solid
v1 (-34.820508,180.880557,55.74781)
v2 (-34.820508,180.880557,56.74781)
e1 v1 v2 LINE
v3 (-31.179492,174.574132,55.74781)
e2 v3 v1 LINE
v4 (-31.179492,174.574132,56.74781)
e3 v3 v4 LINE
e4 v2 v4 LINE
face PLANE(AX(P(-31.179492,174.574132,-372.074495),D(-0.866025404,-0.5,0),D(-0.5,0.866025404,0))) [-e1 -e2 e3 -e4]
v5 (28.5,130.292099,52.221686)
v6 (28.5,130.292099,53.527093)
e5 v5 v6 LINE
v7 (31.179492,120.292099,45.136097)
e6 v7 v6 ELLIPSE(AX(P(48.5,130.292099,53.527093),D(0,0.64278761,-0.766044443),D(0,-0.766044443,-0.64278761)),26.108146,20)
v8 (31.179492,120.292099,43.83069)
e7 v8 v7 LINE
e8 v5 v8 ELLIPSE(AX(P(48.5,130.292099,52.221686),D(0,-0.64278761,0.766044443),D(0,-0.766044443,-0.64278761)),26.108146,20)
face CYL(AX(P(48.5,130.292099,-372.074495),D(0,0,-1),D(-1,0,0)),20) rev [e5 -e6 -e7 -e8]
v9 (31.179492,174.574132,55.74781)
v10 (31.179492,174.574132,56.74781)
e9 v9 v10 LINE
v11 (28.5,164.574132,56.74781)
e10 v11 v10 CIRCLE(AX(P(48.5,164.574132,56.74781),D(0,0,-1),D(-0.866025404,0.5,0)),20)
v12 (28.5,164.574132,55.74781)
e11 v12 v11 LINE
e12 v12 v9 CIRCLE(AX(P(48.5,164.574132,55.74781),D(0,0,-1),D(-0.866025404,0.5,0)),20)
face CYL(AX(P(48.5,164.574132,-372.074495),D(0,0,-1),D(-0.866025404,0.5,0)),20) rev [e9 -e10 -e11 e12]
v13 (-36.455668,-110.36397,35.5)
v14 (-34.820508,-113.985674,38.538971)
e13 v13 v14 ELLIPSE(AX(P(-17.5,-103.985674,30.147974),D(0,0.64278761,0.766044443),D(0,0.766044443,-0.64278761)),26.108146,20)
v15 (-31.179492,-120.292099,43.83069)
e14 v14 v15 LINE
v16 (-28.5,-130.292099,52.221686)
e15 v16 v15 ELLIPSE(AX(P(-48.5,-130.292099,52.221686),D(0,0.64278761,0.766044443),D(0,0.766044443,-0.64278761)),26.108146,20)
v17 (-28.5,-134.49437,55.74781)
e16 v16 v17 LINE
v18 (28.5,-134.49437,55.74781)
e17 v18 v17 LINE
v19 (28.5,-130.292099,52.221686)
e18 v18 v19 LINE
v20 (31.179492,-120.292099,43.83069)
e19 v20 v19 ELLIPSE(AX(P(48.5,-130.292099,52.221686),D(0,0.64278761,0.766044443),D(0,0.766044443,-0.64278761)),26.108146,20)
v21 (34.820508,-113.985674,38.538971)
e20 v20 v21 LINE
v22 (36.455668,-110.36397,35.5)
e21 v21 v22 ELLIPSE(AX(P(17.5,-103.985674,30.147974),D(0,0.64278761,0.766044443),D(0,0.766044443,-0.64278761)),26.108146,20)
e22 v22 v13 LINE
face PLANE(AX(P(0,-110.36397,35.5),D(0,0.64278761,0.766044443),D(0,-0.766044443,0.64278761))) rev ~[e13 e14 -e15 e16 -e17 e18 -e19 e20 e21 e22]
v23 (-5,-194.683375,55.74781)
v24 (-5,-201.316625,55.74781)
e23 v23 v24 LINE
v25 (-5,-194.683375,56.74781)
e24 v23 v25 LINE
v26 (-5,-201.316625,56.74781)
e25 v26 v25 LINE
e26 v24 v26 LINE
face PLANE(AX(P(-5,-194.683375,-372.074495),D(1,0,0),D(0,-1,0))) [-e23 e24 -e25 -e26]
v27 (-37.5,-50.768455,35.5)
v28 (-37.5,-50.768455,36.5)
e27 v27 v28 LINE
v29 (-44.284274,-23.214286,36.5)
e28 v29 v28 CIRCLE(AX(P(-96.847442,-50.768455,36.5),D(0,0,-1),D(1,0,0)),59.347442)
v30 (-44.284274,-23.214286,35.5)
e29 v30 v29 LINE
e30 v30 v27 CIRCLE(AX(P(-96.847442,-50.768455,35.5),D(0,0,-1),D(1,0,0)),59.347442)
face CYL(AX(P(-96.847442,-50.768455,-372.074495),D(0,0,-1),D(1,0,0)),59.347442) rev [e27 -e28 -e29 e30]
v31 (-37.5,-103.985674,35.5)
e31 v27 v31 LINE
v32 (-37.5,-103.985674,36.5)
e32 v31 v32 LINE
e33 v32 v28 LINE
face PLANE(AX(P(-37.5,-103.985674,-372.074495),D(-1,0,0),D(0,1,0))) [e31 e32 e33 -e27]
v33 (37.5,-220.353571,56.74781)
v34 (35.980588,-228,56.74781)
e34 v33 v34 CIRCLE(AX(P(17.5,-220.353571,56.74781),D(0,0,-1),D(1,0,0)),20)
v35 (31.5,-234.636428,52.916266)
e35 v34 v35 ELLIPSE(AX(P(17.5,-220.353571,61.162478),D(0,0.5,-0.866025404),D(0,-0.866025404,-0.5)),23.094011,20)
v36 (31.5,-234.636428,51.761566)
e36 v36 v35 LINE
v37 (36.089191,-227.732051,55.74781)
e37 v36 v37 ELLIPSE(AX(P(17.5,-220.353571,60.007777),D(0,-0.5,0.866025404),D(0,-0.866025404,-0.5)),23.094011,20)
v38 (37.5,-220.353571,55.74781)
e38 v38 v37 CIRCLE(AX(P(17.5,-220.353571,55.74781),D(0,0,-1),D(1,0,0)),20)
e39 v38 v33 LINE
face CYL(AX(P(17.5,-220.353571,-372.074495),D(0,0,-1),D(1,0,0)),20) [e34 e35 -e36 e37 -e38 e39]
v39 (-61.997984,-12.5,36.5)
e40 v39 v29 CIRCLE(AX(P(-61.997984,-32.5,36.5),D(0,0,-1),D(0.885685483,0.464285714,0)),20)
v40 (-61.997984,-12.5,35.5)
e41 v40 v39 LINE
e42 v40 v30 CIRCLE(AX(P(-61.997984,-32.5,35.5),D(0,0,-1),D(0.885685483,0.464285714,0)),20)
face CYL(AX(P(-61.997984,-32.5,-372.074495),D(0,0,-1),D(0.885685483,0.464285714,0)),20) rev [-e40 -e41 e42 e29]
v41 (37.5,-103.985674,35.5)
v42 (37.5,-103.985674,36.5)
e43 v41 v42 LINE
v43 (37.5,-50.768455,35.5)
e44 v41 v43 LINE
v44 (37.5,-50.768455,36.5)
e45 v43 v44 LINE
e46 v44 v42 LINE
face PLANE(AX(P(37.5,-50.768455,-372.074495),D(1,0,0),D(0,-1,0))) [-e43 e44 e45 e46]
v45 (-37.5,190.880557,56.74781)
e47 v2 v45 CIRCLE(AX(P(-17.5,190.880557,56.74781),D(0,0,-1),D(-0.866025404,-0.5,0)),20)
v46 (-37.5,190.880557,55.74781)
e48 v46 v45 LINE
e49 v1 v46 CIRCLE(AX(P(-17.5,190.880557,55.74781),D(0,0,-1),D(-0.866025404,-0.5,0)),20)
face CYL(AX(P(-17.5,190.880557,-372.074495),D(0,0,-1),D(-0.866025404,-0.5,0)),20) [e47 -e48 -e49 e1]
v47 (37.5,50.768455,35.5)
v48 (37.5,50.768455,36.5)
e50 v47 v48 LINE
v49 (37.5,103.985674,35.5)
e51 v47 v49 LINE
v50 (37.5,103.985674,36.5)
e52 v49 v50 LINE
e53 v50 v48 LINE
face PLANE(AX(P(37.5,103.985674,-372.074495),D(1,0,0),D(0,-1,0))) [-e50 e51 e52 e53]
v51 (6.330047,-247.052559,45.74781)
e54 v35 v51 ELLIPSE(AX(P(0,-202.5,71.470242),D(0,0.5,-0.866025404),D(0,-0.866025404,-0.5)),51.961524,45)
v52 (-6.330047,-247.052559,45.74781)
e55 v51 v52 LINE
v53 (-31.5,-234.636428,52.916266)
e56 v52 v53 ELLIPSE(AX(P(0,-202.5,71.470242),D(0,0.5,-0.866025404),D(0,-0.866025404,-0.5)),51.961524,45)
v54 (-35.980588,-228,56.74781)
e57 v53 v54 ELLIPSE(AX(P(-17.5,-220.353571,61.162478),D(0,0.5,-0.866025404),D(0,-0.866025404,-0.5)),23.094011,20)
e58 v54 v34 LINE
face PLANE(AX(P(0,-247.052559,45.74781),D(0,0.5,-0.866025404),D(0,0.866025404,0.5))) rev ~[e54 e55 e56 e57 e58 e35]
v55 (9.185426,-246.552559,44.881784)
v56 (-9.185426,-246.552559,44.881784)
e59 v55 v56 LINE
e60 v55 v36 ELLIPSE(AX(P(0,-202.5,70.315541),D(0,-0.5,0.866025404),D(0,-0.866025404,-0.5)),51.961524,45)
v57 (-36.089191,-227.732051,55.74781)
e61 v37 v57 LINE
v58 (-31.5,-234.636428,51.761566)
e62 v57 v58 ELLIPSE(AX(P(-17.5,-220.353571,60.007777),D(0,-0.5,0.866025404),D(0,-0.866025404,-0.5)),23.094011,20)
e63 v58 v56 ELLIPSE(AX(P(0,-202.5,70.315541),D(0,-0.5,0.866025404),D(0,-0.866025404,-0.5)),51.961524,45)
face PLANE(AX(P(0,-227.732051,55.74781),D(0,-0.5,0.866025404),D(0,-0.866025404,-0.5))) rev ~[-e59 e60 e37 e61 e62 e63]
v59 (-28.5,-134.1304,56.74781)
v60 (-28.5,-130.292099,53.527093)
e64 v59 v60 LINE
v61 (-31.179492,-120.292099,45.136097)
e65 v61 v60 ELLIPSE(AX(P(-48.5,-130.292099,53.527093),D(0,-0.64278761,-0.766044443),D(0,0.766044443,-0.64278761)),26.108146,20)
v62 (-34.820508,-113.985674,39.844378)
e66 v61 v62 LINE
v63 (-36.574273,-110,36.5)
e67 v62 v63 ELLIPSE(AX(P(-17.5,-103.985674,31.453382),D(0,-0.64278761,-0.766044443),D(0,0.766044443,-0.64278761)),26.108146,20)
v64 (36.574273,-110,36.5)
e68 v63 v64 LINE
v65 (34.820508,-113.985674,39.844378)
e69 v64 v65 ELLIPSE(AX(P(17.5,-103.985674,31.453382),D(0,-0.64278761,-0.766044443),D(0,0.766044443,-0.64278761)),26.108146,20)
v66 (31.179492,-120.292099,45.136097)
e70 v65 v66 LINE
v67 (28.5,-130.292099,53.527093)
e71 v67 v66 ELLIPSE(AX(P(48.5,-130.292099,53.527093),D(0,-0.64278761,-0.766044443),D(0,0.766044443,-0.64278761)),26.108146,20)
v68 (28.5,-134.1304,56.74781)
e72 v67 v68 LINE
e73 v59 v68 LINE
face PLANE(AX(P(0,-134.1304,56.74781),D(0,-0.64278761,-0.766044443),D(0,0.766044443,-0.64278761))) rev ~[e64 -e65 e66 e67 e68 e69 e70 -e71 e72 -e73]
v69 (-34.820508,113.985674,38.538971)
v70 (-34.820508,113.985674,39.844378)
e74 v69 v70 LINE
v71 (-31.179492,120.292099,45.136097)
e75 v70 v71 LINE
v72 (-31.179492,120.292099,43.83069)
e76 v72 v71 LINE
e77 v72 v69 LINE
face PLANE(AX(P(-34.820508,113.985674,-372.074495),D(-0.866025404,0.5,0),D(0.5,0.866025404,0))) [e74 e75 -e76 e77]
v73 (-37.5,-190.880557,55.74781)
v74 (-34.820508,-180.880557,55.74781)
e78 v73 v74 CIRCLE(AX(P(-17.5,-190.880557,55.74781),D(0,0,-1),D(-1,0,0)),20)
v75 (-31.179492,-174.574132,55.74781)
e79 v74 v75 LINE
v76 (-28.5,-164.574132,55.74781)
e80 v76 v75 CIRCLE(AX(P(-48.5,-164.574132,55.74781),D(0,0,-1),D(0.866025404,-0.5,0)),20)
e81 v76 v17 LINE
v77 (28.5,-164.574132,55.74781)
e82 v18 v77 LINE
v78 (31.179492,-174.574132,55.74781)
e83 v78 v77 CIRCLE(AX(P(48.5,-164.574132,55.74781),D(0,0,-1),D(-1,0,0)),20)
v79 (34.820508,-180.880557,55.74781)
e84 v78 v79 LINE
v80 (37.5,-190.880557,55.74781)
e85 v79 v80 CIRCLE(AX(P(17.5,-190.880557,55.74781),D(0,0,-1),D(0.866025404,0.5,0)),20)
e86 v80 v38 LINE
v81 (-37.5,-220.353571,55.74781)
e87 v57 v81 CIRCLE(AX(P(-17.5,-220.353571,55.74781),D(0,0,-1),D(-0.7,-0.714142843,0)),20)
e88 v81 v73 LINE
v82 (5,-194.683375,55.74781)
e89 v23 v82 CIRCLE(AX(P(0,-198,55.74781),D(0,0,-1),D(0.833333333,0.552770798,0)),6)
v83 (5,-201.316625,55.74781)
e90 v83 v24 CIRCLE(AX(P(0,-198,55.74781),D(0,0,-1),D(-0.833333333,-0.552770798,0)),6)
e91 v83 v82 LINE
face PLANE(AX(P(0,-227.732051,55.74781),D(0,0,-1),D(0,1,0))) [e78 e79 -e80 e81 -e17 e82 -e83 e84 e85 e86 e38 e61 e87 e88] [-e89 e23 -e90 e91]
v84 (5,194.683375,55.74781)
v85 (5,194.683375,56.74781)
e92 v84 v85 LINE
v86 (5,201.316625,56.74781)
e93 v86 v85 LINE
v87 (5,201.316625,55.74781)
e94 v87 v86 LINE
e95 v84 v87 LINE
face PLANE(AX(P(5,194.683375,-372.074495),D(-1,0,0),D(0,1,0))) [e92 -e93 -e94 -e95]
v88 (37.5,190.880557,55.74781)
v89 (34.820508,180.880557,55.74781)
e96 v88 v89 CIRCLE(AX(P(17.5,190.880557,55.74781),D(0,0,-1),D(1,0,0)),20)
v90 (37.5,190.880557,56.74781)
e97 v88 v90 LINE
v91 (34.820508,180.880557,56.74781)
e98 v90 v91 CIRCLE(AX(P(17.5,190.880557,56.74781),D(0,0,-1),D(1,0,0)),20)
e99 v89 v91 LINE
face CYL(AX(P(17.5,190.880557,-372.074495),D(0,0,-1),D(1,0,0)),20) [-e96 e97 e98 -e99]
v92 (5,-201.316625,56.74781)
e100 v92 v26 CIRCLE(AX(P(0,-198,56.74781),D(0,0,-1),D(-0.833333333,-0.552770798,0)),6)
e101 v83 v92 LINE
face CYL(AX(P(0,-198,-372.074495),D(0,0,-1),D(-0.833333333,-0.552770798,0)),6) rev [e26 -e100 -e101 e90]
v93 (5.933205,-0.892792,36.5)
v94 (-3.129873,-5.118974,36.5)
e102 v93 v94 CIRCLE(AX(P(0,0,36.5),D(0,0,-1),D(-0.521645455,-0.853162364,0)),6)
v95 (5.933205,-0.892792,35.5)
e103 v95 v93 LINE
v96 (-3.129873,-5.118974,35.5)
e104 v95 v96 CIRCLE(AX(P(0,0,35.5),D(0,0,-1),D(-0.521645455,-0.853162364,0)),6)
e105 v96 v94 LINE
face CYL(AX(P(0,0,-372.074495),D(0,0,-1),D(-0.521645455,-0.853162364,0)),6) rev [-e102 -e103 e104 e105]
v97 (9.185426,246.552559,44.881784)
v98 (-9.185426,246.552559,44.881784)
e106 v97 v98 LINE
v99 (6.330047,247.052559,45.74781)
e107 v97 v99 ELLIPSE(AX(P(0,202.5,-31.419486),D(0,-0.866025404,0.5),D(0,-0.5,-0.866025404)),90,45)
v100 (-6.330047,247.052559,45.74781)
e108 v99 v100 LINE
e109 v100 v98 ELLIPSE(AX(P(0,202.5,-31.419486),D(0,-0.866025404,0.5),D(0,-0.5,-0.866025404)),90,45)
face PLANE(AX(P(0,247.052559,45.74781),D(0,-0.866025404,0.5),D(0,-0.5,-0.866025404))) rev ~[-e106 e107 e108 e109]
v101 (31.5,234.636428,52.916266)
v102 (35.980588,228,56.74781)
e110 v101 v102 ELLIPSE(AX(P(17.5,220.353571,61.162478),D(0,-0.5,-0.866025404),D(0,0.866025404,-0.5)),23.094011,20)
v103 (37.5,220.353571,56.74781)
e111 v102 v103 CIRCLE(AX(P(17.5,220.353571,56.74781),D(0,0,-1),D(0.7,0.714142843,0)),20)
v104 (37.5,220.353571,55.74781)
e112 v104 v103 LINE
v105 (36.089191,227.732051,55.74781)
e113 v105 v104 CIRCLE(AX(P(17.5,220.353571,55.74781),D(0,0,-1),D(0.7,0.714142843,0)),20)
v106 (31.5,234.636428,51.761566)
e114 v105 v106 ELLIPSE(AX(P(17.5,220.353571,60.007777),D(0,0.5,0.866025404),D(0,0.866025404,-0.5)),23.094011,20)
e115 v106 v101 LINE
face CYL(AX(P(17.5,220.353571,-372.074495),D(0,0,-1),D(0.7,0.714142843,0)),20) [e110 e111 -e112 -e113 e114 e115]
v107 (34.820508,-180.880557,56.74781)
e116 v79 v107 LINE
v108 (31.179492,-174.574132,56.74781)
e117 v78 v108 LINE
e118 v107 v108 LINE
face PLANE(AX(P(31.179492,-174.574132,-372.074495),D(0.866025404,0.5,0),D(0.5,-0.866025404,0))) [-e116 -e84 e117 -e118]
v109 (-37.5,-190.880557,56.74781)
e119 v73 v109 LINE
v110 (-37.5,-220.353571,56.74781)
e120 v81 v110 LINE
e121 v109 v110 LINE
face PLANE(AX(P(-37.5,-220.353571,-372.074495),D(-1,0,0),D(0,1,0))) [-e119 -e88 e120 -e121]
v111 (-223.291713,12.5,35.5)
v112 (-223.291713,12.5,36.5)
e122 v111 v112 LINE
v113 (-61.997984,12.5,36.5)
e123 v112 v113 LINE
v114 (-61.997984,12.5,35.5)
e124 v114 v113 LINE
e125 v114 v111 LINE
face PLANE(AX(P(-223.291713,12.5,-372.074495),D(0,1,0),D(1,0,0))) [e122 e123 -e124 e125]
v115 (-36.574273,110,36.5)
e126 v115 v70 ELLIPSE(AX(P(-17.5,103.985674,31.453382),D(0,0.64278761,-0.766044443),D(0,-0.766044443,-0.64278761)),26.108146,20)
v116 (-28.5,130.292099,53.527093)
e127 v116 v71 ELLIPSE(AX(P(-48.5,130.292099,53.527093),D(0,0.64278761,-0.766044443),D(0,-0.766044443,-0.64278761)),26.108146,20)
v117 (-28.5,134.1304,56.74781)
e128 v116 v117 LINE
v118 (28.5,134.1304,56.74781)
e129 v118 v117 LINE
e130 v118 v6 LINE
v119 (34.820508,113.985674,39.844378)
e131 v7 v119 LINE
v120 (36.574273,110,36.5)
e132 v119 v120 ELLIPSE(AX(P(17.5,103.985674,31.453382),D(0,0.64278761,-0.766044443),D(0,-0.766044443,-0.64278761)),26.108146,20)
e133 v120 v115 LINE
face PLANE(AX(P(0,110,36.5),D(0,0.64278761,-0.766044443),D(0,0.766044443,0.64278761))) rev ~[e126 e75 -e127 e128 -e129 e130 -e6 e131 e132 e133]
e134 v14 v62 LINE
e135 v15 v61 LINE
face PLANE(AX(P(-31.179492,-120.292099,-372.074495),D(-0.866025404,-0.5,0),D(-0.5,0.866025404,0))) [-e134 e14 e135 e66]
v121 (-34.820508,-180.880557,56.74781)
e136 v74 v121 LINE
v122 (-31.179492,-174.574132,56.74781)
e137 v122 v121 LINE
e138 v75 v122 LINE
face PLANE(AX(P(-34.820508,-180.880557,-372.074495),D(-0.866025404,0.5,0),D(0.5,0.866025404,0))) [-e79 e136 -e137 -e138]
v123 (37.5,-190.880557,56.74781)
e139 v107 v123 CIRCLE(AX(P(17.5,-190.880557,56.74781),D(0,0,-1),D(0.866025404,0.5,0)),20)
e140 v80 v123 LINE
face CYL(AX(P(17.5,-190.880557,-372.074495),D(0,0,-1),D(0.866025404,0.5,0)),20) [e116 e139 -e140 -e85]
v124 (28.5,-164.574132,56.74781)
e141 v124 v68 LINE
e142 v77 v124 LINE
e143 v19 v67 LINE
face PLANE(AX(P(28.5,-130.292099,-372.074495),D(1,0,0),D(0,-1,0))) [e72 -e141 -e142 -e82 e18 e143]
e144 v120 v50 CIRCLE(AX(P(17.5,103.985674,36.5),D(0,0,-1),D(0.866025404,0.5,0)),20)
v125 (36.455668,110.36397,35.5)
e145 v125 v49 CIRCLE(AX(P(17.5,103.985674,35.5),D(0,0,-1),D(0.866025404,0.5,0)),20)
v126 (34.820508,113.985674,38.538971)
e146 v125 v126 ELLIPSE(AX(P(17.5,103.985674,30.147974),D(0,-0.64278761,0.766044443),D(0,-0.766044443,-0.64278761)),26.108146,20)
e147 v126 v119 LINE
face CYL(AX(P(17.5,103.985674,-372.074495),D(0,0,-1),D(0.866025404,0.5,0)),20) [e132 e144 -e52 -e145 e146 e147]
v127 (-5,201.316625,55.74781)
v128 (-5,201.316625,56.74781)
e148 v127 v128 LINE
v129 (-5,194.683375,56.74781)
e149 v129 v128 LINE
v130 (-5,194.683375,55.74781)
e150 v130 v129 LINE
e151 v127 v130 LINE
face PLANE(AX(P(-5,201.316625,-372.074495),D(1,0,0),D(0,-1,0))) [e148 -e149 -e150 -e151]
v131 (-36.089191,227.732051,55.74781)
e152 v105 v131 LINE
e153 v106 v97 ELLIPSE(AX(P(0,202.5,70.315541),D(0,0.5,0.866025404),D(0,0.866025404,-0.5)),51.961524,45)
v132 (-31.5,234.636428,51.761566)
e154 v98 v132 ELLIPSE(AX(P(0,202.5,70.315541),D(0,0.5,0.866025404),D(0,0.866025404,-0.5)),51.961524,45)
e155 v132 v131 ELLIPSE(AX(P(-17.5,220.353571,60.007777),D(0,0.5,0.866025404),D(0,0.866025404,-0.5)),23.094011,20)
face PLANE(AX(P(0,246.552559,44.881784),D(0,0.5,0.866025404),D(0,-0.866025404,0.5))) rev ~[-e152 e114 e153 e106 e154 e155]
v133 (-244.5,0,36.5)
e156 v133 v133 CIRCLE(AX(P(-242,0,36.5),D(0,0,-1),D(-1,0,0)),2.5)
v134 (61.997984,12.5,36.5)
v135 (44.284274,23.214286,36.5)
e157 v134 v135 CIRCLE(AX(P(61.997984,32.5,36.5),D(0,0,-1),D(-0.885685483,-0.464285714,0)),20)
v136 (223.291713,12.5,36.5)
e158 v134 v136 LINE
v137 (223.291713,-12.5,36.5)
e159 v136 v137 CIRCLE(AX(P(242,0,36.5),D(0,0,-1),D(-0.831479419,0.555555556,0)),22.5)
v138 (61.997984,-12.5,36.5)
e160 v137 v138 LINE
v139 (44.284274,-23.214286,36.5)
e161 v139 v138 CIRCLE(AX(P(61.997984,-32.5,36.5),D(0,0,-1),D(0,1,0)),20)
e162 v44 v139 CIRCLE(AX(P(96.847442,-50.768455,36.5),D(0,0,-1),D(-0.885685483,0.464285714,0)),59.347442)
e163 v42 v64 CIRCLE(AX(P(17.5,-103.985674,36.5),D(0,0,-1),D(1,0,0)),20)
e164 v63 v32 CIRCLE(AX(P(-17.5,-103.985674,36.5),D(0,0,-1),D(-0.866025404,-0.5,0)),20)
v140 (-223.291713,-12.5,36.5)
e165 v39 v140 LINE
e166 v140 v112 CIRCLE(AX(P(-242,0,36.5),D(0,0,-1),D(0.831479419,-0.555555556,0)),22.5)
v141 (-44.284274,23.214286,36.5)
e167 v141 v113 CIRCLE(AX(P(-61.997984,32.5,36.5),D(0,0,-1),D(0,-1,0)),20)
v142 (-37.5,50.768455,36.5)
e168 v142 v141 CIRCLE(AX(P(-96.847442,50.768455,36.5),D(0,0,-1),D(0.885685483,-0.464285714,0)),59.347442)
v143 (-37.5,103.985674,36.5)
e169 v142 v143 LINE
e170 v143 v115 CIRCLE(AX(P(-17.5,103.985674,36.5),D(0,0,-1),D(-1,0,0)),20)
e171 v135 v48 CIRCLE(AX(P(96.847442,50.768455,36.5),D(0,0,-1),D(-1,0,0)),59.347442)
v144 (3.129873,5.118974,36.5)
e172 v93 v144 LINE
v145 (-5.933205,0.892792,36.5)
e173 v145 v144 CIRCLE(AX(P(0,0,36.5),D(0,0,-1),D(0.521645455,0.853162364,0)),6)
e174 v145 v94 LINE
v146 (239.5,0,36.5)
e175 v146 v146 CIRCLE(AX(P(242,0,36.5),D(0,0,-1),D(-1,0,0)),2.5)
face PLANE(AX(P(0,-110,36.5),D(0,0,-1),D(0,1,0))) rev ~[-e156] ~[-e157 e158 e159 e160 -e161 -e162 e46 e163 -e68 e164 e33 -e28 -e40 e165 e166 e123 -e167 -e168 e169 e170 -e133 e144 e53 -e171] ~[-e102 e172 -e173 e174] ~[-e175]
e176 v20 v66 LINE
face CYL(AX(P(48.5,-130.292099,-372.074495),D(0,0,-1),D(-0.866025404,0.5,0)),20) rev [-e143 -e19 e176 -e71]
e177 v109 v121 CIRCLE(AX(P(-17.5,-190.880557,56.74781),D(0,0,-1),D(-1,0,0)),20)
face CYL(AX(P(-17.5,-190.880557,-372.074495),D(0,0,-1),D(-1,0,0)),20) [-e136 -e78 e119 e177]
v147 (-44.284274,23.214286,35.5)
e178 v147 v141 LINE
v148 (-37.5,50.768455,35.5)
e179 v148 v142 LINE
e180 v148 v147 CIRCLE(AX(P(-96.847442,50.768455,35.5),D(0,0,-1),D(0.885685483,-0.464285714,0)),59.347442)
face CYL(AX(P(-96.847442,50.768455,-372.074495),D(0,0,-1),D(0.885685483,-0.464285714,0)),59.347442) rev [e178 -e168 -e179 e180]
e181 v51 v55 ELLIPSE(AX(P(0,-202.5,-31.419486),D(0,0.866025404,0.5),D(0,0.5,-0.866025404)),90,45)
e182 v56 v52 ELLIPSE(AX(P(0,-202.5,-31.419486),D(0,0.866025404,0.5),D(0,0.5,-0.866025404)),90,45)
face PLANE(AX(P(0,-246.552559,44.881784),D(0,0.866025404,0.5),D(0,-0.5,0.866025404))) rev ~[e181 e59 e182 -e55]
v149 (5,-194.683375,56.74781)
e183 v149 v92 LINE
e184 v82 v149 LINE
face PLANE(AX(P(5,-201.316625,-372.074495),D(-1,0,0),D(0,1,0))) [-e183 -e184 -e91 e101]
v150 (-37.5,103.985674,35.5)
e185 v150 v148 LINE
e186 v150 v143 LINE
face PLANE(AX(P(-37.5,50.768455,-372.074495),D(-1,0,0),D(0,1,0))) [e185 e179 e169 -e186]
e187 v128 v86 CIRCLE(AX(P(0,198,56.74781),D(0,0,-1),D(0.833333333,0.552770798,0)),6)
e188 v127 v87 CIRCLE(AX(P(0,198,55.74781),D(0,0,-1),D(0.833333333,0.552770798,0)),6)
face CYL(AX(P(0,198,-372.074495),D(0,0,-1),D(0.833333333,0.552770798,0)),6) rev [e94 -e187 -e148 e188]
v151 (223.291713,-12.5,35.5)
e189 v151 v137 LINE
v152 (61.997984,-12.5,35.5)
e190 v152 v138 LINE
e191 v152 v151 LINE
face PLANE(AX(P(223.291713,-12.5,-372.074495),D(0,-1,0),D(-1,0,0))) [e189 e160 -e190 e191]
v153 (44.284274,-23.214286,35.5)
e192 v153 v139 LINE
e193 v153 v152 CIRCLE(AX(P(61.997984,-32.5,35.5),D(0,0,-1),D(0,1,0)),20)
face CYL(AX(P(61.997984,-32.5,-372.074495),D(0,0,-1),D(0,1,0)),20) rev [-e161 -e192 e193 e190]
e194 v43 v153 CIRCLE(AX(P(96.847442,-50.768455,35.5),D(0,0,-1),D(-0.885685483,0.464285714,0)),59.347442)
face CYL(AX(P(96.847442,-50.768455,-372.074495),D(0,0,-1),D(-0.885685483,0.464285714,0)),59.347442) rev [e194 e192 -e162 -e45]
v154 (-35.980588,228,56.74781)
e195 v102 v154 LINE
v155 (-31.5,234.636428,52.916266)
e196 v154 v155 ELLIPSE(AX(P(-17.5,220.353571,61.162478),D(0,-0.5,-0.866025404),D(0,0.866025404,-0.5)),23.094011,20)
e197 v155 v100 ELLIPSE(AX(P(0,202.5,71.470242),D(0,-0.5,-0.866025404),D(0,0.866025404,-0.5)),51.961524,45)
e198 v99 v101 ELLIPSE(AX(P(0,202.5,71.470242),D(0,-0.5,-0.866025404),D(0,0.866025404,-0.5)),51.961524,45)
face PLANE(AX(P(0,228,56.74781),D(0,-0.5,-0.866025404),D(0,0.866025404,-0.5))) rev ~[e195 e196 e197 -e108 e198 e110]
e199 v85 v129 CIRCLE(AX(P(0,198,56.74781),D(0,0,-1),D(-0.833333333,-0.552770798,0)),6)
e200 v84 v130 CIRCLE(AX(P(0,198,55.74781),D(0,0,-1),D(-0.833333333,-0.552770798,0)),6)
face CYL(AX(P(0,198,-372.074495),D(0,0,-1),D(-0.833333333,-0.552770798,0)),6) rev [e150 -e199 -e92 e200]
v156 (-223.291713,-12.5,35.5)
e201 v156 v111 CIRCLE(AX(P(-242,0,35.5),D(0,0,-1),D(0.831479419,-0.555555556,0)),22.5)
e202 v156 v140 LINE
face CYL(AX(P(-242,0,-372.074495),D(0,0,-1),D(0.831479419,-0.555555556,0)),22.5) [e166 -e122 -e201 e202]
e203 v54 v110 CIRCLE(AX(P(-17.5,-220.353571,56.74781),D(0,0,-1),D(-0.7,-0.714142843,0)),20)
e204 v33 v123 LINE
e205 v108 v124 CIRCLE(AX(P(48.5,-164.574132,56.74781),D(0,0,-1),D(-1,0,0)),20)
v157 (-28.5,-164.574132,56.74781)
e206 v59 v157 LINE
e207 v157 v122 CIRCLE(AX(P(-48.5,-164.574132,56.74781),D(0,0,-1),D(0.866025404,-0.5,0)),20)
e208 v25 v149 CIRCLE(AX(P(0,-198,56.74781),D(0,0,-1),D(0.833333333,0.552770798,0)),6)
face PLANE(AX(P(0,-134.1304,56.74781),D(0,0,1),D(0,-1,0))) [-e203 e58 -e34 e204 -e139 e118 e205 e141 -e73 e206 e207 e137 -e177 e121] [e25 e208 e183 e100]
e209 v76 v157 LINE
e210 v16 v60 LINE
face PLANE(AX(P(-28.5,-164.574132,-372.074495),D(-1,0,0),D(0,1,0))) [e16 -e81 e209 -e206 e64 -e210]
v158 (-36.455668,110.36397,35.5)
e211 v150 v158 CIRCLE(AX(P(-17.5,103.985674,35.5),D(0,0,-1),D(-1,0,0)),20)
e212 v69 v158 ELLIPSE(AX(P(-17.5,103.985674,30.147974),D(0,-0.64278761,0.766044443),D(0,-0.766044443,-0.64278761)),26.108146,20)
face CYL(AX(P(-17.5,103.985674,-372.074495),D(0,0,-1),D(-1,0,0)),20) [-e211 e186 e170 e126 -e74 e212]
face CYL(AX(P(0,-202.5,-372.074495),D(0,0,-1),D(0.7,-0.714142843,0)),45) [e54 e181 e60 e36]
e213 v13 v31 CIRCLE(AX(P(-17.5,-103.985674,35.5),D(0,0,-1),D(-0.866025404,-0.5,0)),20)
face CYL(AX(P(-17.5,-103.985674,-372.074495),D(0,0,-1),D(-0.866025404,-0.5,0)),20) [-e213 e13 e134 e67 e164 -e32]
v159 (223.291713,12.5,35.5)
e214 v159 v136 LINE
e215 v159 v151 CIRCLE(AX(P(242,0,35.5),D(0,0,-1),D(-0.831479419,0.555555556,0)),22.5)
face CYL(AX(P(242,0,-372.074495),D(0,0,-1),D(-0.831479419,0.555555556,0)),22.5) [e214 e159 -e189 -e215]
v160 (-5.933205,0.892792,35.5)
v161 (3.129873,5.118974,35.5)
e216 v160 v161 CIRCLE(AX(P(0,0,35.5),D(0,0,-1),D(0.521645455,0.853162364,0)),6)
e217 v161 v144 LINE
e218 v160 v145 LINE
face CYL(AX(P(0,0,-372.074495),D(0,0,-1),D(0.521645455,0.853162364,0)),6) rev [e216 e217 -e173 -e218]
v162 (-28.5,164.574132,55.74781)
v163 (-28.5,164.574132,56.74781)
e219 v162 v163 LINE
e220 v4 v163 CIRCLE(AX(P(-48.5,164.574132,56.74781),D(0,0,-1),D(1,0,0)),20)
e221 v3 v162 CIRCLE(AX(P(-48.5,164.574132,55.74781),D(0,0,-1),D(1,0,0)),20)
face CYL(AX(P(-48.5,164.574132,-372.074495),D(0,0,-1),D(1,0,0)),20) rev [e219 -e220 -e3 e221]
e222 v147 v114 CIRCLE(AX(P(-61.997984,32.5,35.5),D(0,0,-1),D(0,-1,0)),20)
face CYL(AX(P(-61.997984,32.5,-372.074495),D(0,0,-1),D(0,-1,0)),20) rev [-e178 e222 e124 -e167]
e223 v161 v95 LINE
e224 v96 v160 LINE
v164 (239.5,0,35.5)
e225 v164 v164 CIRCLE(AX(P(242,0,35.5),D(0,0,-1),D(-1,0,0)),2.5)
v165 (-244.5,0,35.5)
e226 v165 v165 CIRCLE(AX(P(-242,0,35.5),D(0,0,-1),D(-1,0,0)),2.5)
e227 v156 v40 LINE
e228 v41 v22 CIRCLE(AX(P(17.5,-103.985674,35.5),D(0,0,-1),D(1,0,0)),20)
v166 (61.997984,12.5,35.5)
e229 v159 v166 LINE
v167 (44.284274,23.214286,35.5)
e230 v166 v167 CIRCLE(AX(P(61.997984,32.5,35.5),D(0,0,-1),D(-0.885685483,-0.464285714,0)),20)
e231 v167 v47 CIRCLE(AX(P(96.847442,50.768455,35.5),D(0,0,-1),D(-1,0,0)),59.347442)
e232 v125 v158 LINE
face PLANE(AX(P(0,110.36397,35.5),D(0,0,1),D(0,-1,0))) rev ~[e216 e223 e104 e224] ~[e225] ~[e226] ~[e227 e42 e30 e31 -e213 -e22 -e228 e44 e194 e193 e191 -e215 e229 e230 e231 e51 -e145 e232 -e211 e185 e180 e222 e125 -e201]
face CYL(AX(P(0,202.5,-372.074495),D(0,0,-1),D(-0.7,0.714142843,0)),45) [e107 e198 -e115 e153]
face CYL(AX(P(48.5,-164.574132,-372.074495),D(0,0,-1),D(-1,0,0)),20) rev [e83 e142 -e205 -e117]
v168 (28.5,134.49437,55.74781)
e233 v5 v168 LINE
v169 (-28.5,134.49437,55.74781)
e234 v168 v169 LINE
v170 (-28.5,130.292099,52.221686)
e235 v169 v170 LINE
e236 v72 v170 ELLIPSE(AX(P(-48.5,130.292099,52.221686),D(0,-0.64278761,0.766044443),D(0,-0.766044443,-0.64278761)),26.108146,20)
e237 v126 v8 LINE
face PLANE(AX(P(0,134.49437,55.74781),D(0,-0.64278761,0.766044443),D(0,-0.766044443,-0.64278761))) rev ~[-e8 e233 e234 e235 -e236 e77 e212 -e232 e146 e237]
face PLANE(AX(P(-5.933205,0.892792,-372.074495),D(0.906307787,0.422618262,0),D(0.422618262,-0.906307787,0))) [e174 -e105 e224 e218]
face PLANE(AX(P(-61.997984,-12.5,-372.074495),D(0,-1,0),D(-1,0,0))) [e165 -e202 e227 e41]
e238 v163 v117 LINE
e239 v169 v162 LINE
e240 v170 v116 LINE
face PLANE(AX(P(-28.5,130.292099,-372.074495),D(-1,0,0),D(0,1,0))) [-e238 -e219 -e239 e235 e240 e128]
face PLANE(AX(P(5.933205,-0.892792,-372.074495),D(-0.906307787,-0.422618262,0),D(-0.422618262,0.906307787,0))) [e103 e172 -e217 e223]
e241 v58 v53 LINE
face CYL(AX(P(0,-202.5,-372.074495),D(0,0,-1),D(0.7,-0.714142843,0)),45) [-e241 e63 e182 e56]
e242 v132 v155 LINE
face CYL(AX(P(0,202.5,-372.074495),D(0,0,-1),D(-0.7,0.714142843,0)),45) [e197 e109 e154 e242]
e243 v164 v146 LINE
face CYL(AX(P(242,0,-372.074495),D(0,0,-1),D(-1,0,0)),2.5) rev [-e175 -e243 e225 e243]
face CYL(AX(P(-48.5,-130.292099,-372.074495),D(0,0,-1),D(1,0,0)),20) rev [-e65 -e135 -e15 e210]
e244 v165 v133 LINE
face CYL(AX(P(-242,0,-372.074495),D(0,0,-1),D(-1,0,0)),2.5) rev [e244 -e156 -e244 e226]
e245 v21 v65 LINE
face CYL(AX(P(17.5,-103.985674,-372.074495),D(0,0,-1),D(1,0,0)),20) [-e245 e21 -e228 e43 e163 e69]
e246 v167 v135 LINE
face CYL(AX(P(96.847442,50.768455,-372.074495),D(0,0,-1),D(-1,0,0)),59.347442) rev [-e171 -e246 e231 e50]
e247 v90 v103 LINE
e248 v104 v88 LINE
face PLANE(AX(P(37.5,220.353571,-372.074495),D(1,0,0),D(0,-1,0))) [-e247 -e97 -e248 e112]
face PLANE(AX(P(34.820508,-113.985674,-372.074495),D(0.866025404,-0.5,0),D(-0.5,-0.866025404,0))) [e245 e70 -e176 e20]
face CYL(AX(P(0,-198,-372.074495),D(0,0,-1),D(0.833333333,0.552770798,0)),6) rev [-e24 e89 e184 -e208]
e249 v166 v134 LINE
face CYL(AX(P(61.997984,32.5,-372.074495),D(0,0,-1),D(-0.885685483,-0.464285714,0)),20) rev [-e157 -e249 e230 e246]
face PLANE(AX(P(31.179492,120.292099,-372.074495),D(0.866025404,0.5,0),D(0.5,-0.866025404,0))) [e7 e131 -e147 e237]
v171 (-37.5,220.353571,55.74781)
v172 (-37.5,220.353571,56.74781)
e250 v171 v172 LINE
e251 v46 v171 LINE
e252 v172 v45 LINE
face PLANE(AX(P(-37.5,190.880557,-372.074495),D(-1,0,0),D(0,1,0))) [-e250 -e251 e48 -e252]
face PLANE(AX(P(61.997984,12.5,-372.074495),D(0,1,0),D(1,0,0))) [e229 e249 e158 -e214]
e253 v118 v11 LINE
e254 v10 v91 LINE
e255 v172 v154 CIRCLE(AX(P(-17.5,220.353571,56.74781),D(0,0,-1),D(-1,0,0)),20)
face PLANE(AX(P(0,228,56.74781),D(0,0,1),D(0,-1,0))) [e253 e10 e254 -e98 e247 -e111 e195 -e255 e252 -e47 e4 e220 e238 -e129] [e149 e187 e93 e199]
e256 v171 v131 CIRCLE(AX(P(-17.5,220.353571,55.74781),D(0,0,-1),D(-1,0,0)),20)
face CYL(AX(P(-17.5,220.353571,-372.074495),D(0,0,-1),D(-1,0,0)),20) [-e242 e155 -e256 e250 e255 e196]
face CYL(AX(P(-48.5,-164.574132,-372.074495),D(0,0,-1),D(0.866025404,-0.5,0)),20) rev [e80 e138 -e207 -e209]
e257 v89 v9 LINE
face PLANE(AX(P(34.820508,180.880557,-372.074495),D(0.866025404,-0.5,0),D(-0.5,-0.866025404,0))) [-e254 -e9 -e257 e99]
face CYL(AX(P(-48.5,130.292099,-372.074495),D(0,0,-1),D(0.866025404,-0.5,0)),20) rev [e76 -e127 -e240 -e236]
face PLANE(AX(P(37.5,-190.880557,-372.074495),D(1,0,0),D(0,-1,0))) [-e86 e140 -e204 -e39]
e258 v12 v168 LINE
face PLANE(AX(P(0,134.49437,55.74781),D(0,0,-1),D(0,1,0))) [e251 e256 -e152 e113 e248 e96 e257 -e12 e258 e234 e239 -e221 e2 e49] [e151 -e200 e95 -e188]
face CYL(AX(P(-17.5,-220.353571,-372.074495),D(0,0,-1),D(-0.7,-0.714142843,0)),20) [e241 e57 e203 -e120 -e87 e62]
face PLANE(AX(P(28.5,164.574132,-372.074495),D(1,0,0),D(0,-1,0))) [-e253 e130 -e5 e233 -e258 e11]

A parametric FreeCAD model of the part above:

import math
import FreeCAD as App
import Part
import Sketcher
from FreeCAD import Vector
Q = App.Units.Quantity

doc = App.newDocument("Part")
body = doc.addObject("PartDesign::Body", "Body")

# Sketch on YZ plane
sketch1 = body.newObject("Sketcher::SketchObject", "Sketch")
sketch1.AttachmentSupport = (doc.getObject("YZ_Plane"), [""])
sketch1.MapMode = "FlatFace"
sketch1.addGeometry([
    Part.LineSegment(Vector(110, 36.5, 0), Vector(-110, 36.5, 0)),  # 0
    Part.LineSegment(Vector(-110, 36.5, 0), Vector(-134.1, 56.7, 0)),  # 1
    Part.LineSegment(Vector(-134.1, 56.7, 0), Vector(-228, 56.7, 0)),  # 2
    Part.LineSegment(Vector(-228, 56.7, 0), Vector(-247.1, 45.7, 0)),  # 3
    Part.LineSegment(Vector(-247.1, 45.7, 0), Vector(-246.6, 44.9, 0)),  # 4
    Part.LineSegment(Vector(-246.6, 44.9, 0), Vector(-227.7, 55.7, 0)),  # 5
    Part.LineSegment(Vector(-227.7, 55.7, 0), Vector(-134.5, 55.7, 0)),  # 6
    Part.LineSegment(Vector(-134.5, 55.7, 0), Vector(-110.4, 35.5, 0)),  # 7
    Part.LineSegment(Vector(-110.4, 35.5, 0), Vector(110.4, 35.5, 0)),  # 8
    Part.LineSegment(Vector(110.4, 35.5, 0), Vector(134.5, 55.7, 0)),  # 9
    Part.LineSegment(Vector(134.5, 55.7, 0), Vector(227.7, 55.7, 0)),  # 10
    Part.LineSegment(Vector(227.7, 55.7, 0), Vector(246.6, 44.9, 0)),  # 11
    Part.LineSegment(Vector(246.6, 44.9, 0), Vector(247.1, 45.7, 0)),  # 12
    Part.LineSegment(Vector(247.1, 45.7, 0), Vector(228, 56.7, 0)),  # 13
    Part.LineSegment(Vector(228, 56.7, 0), Vector(134.1, 56.7, 0)),  # 14
    Part.LineSegment(Vector(134.1, 56.7, 0), Vector(110, 36.5, 0)),  # 15
], False)
sketch1.addConstraint([
    Sketcher.Constraint("Coincident", 0, 2, 1, 1),
    Sketcher.Constraint("Coincident", 1, 2, 2, 1),
    Sketcher.Constraint("Coincident", 2, 2, 3, 1),
    Sketcher.Constraint("Coincident", 3, 2, 4, 1),
    Sketcher.Constraint("Coincident", 4, 2, 5, 1),
    Sketcher.Constraint("Coincident", 5, 2, 6, 1),
    Sketcher.Constraint("Coincident", 6, 2, 7, 1),
    Sketcher.Constraint("Coincident", 7, 2, 8, 1),
    Sketcher.Constraint("Coincident", 8, 2, 9, 1),
    Sketcher.Constraint("Coincident", 9, 2, 10, 1),
    Sketcher.Constraint("Coincident", 10, 2, 11, 1),
    Sketcher.Constraint("Coincident", 11, 2, 12, 1),
    Sketcher.Constraint("Coincident", 12, 2, 13, 1),
    Sketcher.Constraint("Coincident", 13, 2, 14, 1),
    Sketcher.Constraint("Coincident", 14, 2, 15, 1),
    Sketcher.Constraint("Coincident", 15, 2, 0, 1),
    Sketcher.Constraint("Horizontal", 0),
    Sketcher.Constraint("Horizontal", 2),
    Sketcher.Constraint("Horizontal", 6),
    Sketcher.Constraint("Horizontal", 8),
    Sketcher.Constraint("Horizontal", 10),
    Sketcher.Constraint("Horizontal", 14),
    Sketcher.Constraint("Symmetric", 6, 2, 9, 2, -2),
    Sketcher.Constraint("Symmetric", 4, 2, 11, 2, -2),
    Sketcher.Constraint("Symmetric", 3, 2, 12, 2, -2),
    Sketcher.Constraint("Symmetric", 2, 2, 13, 2, -2),
    Sketcher.Constraint("Perpendicular", 3, 4),
    Sketcher.Constraint("Perpendicular", 4, 5),
    Sketcher.Constraint("Parallel", 1, 7),
    Sketcher.Constraint("Perpendicular", 11, 12),
    Sketcher.Constraint("Parallel", 9, 15),
    Sketcher.Constraint("Equal", 2, 14),
    Sketcher.Constraint("Equal", 1, 7),
    Sketcher.Constraint("Equal", 7, 9),
    Sketcher.Constraint("DistanceX", 0, 2, 0, 1, Q("220 mm")),
    Sketcher.Constraint("Angle", 1, Q("140 deg")),
    Sketcher.Constraint("Angle", 3, Q("-150 deg")),
    Sketcher.Constraint("Distance", 3, Q("22 mm")),
    Sketcher.Constraint("Distance", 4, Q("1 mm")),
    Sketcher.Constraint("DistanceX", 2, 2, -1, 1, Q("228 mm")),
    Sketcher.Constraint("DistanceY", 5, 2, 2, 2, Q("1 mm")),
    Sketcher.Constraint("Distance", 1, Q("31.5 mm")),
    Sketcher.Constraint("DistanceY", -1, 1, 0, 2, Q("36.5 mm")),
    Sketcher.Constraint("DistanceX", 6, 1, 6, 2, Q("93.237681 mm")),
])
pad1 = body.newObject("PartDesign::Pad", "Pad")
pad1.Profile = sketch1
pad1.Length = 542
pad1.Midplane = True

# Sketch on XY plane
sketch2 = body.newObject("Sketcher::SketchObject", "Sketch001")
sketch2.AttachmentSupport = (doc.getObject("XY_Plane"), [""])
sketch2.MapMode = "FlatFace"
sketch2.addGeometry([
    Part.Circle(Vector(-242, 0, 0), Vector(0, 0, 1), 2.5),  # 0
    Part.Circle(Vector(242, 0, 0), Vector(0, 0, 1), 2.5),  # 1
    Part.LineSegment(Vector(-5, 201.3, 0), Vector(-5, 194.7, 0)),  # 2
    Part.ArcOfCircle(Part.Circle(Vector(0, 198, 0), Vector(0, 0, 1), 6), math.radians(-146), math.radians(-34)),  # 3
    Part.LineSegment(Vector(5, 194.7, 0), Vector(5, 201.3, 0)),  # 4
    Part.ArcOfCircle(Part.Circle(Vector(0, 198, 0), Vector(0, 0, 1), 6), math.radians(34), math.radians(146)),  # 5
    Part.LineSegment(Vector(5, -201.3, 0), Vector(5, -194.7, 0)),  # 6
    Part.ArcOfCircle(Part.Circle(Vector(0, -198, 0), Vector(0, 0, 1), 6), math.radians(34), math.radians(146)),  # 7
    Part.LineSegment(Vector(-5, -194.7, 0), Vector(-5, -201.3, 0)),  # 8
    Part.ArcOfCircle(Part.Circle(Vector(0, -198, 0), Vector(0, 0, 1), 6), math.radians(-146), math.radians(-34)),  # 9
    Part.LineSegment(Vector(-5.9, 0.9, 0), Vector(-3.1, -5.1, 0)),  # 10
    Part.ArcOfCircle(Part.Circle(Vector(0, 0, 0), Vector(0, 0, 1), 6), math.radians(-121), math.radians(-9)),  # 11
    Part.LineSegment(Vector(5.9, -0.9, 0), Vector(3.1, 5.1, 0)),  # 12
    Part.ArcOfCircle(Part.Circle(Vector(0, 0, 0), Vector(0, 0, 1), 6), math.radians(59), math.radians(171)),  # 13
], False)
sketch2.addConstraint([
    Sketcher.Constraint("Coincident", 2, 2, 3, 1),
    Sketcher.Constraint("Coincident", 3, 2, 4, 1),
    Sketcher.Constraint("Coincident", 4, 2, 5, 1),
    Sketcher.Constraint("Coincident", 5, 2, 2, 1),
    Sketcher.Constraint("Coincident", 6, 2, 7, 1),
    Sketcher.Constraint("Coincident", 7, 2, 8, 1),
    Sketcher.Constraint("Coincident", 8, 2, 9, 1),
    Sketcher.Constraint("Coincident", 9, 2, 6, 1),
    Sketcher.Constraint("Coincident", 10, 2, 11, 1),
    Sketcher.Constraint("Coincident", 11, 2, 12, 1),
    Sketcher.Constraint("Coincident", 12, 2, 13, 1),
    Sketcher.Constraint("Coincident", 13, 2, 10, 1),
    Sketcher.Constraint("Vertical", 2),
    Sketcher.Constraint("Vertical", 4),
    Sketcher.Constraint("Vertical", 6),
    Sketcher.Constraint("Vertical", 8),
    Sketcher.Constraint("Coincident", 11, 3, -1, 1),
    Sketcher.Constraint("Coincident", 13, 3, -1, 1),
    Sketcher.Constraint("Coincident", 5, 3, 3, 3),
    Sketcher.Constraint("Coincident", 9, 3, 7, 3),
    Sketcher.Constraint("Equal", 0, 1),
    Sketcher.Constraint("Equal", 3, 5),
    Sketcher.Constraint("Equal", 5, 7),
    Sketcher.Constraint("Equal", 7, 9),
    Sketcher.Constraint("Equal", 9, 11),
    Sketcher.Constraint("Equal", 11, 13),
    Sketcher.Constraint("Symmetric", 0, 3, 1, 3, -1, 1),
    Sketcher.Constraint("Symmetric", 3, 3, 7, 3, -1, 1),
    Sketcher.Constraint("Symmetric", 2, 2, 3, 2, -2),
    Sketcher.Constraint("PointOnObject", 0, 3, -1),
    Sketcher.Constraint("Parallel", 10, 12),
    Sketcher.Constraint("Horizontal", 6, 2, 7, 2),
    Sketcher.Constraint("Vertical", 4, 2, 6, 2),
    Sketcher.Constraint("Equal", 10, 12),
    Sketcher.Constraint("Diameter", 0, Q("5 mm")),
    Sketcher.Constraint("Radius", 3, Q("6 mm")),
    Sketcher.Constraint("Angle", 10, Q("-65 deg")),
    Sketcher.Constraint("DistanceX", 0, 3, -1, 1, Q("242 mm")),
    Sketcher.Constraint("DistanceY", -1, 1, 3, 3, Q("198 mm")),
    Sketcher.Constraint("DistanceX", 2, 2, -1, 1, Q("5 mm")),
    Sketcher.Constraint("DistanceY", 7, 2, 10, 2, Q("189.564401 mm")),
])
pocket1 = body.newObject("PartDesign::Pocket", "Pocket")
pocket1.Profile = sketch2
pocket1.Type = "ThroughAll"
pocket1.Midplane = True

# Sketch on XY plane
sketch3 = body.newObject("Sketcher::SketchObject", "Sketch002")
sketch3.AttachmentSupport = (doc.getObject("XY_Plane"), [""])
sketch3.MapMode = "FlatFace"
sketch3.addGeometry([
    Part.LineSegment(Vector(-300, 277, 0), Vector(-300, -277, 0)),  # 0
    Part.LineSegment(Vector(-300, -277, 0), Vector(300, -277, 0)),  # 1
    Part.LineSegment(Vector(300, -277, 0), Vector(300, 277, 0)),  # 2
    Part.LineSegment(Vector(300, 277, 0), Vector(-300, 277, 0)),  # 3
    Part.ArcOfCircle(Part.Circle(Vector(-48, 165, 0), Vector(0, 0, 1), 20), math.radians(0), math.radians(30)),  # 4
    Part.LineSegment(Vector(-31, 175, 0), Vector(-35, 181, 0)),  # 5
    Part.ArcOfCircle(Part.Circle(Vector(-18, 191, 0), Vector(0, 0, 1), 20), math.radians(180), math.radians(210)),  # 6
    Part.LineSegment(Vector(-38, 191, 0), Vector(-38, 220, 0)),  # 7
    Part.ArcOfCircle(Part.Circle(Vector(-18, 220, 0), Vector(0, 0, 1), 20), math.radians(134), math.radians(180)),  # 8
    Part.ArcOfCircle(Part.Circle(Vector(0, 203, 0), Vector(0, 0, 1), 45), math.radians(46), math.radians(134)),  # 9
    Part.ArcOfCircle(Part.Circle(Vector(18, 220, 0), Vector(0, 0, 1), 20), math.radians(0), math.radians(46)),  # 10
    Part.LineSegment(Vector(38, 220, 0), Vector(38, 191, 0)),  # 11
    Part.ArcOfCircle(Part.Circle(Vector(18, 191, 0), Vector(0, 0, 1), 20), math.radians(-30), math.radians(0)),  # 12
    Part.LineSegment(Vector(35, 181, 0), Vector(31, 175, 0)),  # 13
    Part.ArcOfCircle(Part.Circle(Vector(48, 165, 0), Vector(0, 0, 1), 20), math.radians(150), math.radians(180)),  # 14
    Part.LineSegment(Vector(28, 165, 0), Vector(28, 130, 0)),  # 15
    Part.ArcOfCircle(Part.Circle(Vector(48, 130, 0), Vector(0, 0, 1), 20), math.radians(180), math.radians(210)),  # 16
    Part.LineSegment(Vector(31, 120, 0), Vector(35, 114, 0)),  # 17
    Part.ArcOfCircle(Part.Circle(Vector(18, 104, 0), Vector(0, 0, 1), 20), math.radians(0), math.radians(30)),  # 18
    Part.LineSegment(Vector(38, 104, 0), Vector(38, 51, 0)),  # 19
    Part.ArcOfCircle(Part.Circle(Vector(97, 51, 0), Vector(0, 0, 1), 59), math.radians(180), math.radians(208)),  # 20
    Part.ArcOfCircle(Part.Circle(Vector(62, 33, 0), Vector(0, 0, 1), 20), math.radians(-152), math.radians(-90)),  # 21
    Part.LineSegment(Vector(62, 12, 0), Vector(223, 12, 0)),  # 22
    Part.ArcOfCircle(Part.Circle(Vector(242, 0, 0), Vector(0, 0, 1), 22), math.radians(-146), math.radians(146)),  # 23
    Part.LineSegment(Vector(223, -12, 0), Vector(62, -12, 0)),  # 24
    Part.ArcOfCircle(Part.Circle(Vector(62, -33, 0), Vector(0, 0, 1), 20), math.radians(90), math.radians(152)),  # 25
    Part.ArcOfCircle(Part.Circle(Vector(97, -51, 0), Vector(0, 0, 1), 59), math.radians(152), math.radians(180)),  # 26
    Part.LineSegment(Vector(38, -51, 0), Vector(38, -104, 0)),  # 27
    Part.ArcOfCircle(Part.Circle(Vector(18, -104, 0), Vector(0, 0, 1), 20), math.radians(-30), math.radians(0)),  # 28
    Part.LineSegment(Vector(35, -114, 0), Vector(31, -120, 0)),  # 29
    Part.ArcOfCircle(Part.Circle(Vector(48, -130, 0), Vector(0, 0, 1), 20), math.radians(150), math.radians(180)),  # 30
    Part.LineSegment(Vector(28, -130, 0), Vector(28, -165, 0)),  # 31
    Part.ArcOfCircle(Part.Circle(Vector(48, -165, 0), Vector(0, 0, 1), 20), math.radians(180), math.radians(210)),  # 32
    Part.LineSegment(Vector(31, -175, 0), Vector(35, -181, 0)),  # 33
    Part.ArcOfCircle(Part.Circle(Vector(18, -191, 0), Vector(0, 0, 1), 20), math.radians(0), math.radians(30)),  # 34
    Part.LineSegment(Vector(38, -191, 0), Vector(38, -220, 0)),  # 35
    Part.ArcOfCircle(Part.Circle(Vector(18, -220, 0), Vector(0, 0, 1), 20), math.radians(-46), math.radians(0)),  # 36
    Part.ArcOfCircle(Part.Circle(Vector(0, -203, 0), Vector(0, 0, 1), 45), math.radians(-134), math.radians(-46)),  # 37
    Part.ArcOfCircle(Part.Circle(Vector(-18, -220, 0), Vector(0, 0, 1), 20), math.radians(180), math.radians(226)),  # 38
    Part.LineSegment(Vector(-38, -220, 0), Vector(-38, -191, 0)),  # 39
    Part.ArcOfCircle(Part.Circle(Vector(-18, -191, 0), Vector(0, 0, 1), 20), math.radians(150), math.radians(180)),  # 40
    Part.LineSegment(Vector(-35, -181, 0), Vector(-31, -175, 0)),  # 41
    Part.ArcOfCircle(Part.Circle(Vector(-48, -165, 0), Vector(0, 0, 1), 20), math.radians(-30), math.radians(0)),  # 42
    Part.LineSegment(Vector(-28, -165, 0), Vector(-28, -130, 0)),  # 43
    Part.ArcOfCircle(Part.Circle(Vector(-48, -130, 0), Vector(0, 0, 1), 20), math.radians(0), math.radians(30)),  # 44
    Part.LineSegment(Vector(-31, -120, 0), Vector(-35, -114, 0)),  # 45
    Part.ArcOfCircle(Part.Circle(Vector(-18, -104, 0), Vector(0, 0, 1), 20), math.radians(180), math.radians(210)),  # 46
    Part.LineSegment(Vector(-38, -104, 0), Vector(-38, -51, 0)),  # 47
    Part.ArcOfCircle(Part.Circle(Vector(-97, -51, 0), Vector(0, 0, 1), 59), math.radians(0), math.radians(28)),  # 48
    Part.ArcOfCircle(Part.Circle(Vector(-62, -33, 0), Vector(0, 0, 1), 20), math.radians(28), math.radians(90)),  # 49
    Part.LineSegment(Vector(-62, -12, 0), Vector(-223, -12, 0)),  # 50
    Part.ArcOfCircle(Part.Circle(Vector(-242, 0, 0), Vector(0, 0, 1), 22), math.radians(34), math.radians(326)),  # 51
    Part.LineSegment(Vector(-223, 12, 0), Vector(-62, 12, 0)),  # 52
    Part.ArcOfCircle(Part.Circle(Vector(-62, 33, 0), Vector(0, 0, 1), 20), math.radians(-90), math.radians(-28)),  # 53
    Part.ArcOfCircle(Part.Circle(Vector(-97, 51, 0), Vector(0, 0, 1), 59), math.radians(-28), math.radians(0)),  # 54
    Part.LineSegment(Vector(-38, 51, 0), Vector(-38, 104, 0)),  # 55
    Part.ArcOfCircle(Part.Circle(Vector(-18, 104, 0), Vector(0, 0, 1), 20), math.radians(150), math.radians(180)),  # 56
    Part.LineSegment(Vector(-35, 114, 0), Vector(-31, 120, 0)),  # 57
    Part.ArcOfCircle(Part.Circle(Vector(-48, 130, 0), Vector(0, 0, 1), 20), math.radians(-30), math.radians(0)),  # 58
    Part.LineSegment(Vector(-28, 130, 0), Vector(-28, 165, 0)),  # 59
], False)
sketch3.addConstraint([
    Sketcher.Constraint("Coincident", 0, 2, 1, 1),
    Sketcher.Constraint("Coincident", 1, 2, 2, 1),
    Sketcher.Constraint("Coincident", 2, 2, 3, 1),
    Sketcher.Constraint("Coincident", 3, 2, 0, 1),
    Sketcher.Constraint("Tangent", 4, 2, 5, 1),
    Sketcher.Constraint("Tangent", 5, 2, 6, 2),
    Sketcher.Constraint("Tangent", 6, 1, 7, 1),
    Sketcher.Constraint("Tangent", 7, 2, 8, 2),
    Sketcher.Constraint("Tangent", 8, 1, 9, 2),
    Sketcher.Constraint("Tangent", 9, 1, 10, 2),
    Sketcher.Constraint("Tangent", 10, 1, 11, 1),
    Sketcher.Constraint("Tangent", 11, 2, 12, 2),
    Sketcher.Constraint("Tangent", 12, 1, 13, 1),
    Sketcher.Constraint("Tangent", 13, 2, 14, 1),
    Sketcher.Constraint("Tangent", 14, 2, 15, 1),
    Sketcher.Constraint("Tangent", 15, 2, 16, 1),
    Sketcher.Constraint("Tangent", 16, 2, 17, 1),
    Sketcher.Constraint("Tangent", 17, 2, 18, 2),
    Sketcher.Constraint("Tangent", 18, 1, 19, 1),
    Sketcher.Constraint("Tangent", 19, 2, 20, 1),
    Sketcher.Constraint("Tangent", 20, 2, 21, 1),
    Sketcher.Constraint("Tangent", 21, 2, 22, 1),
    Sketcher.Constraint("Coincident", 22, 2, 23, 2),
    Sketcher.Constraint("Coincident", 23, 1, 24, 1),
    Sketcher.Constraint("Tangent", 24, 2, 25, 1),
    Sketcher.Constraint("Tangent", 25, 2, 26, 1),
    Sketcher.Constraint("Tangent", 26, 2, 27, 1),
    Sketcher.Constraint("Tangent", 27, 2, 28, 2),
    Sketcher.Constraint("Tangent", 28, 1, 29, 1),
    Sketcher.Constraint("Tangent", 29, 2, 30, 1),
    Sketcher.Constraint("Tangent", 30, 2, 31, 1),
    Sketcher.Constraint("Tangent", 31, 2, 32, 1),
    Sketcher.Constraint("Tangent", 32, 2, 33, 1),
    Sketcher.Constraint("Tangent", 33, 2, 34, 2),
    Sketcher.Constraint("Tangent", 34, 1, 35, 1),
    Sketcher.Constraint("Tangent", 35, 2, 36, 2),
    Sketcher.Constraint("Tangent", 36, 1, 37, 2),
    Sketcher.Constraint("Tangent", 37, 1, 38, 2),
    Sketcher.Constraint("Tangent", 38, 1, 39, 1),
    Sketcher.Constraint("Tangent", 39, 2, 40, 2),
    Sketcher.Constraint("Tangent", 40, 1, 41, 1),
    Sketcher.Constraint("Tangent", 41, 2, 42, 1),
    Sketcher.Constraint("Tangent", 42, 2, 43, 1),
    Sketcher.Constraint("Tangent", 43, 2, 44, 1),
    Sketcher.Constraint("Tangent", 44, 2, 45, 1),
    Sketcher.Constraint("Tangent", 45, 2, 46, 2),
    Sketcher.Constraint("Tangent", 46, 1, 47, 1),
    Sketcher.Constraint("Tangent", 47, 2, 48, 1),
    Sketcher.Constraint("Tangent", 48, 2, 49, 1),
    Sketcher.Constraint("Tangent", 49, 2, 50, 1),
    Sketcher.Constraint("Coincident", 50, 2, 51, 2),
    Sketcher.Constraint("Coincident", 51, 1, 52, 1),
    Sketcher.Constraint("Tangent", 52, 2, 53, 1),
    Sketcher.Constraint("Tangent", 53, 2, 54, 1),
    Sketcher.Constraint("Tangent", 54, 2, 55, 1),
    Sketcher.Constraint("Tangent", 55, 2, 56, 2),
    Sketcher.Constraint("Tangent", 56, 1, 57, 1),
    Sketcher.Constraint("Tangent", 57, 2, 58, 1),
    Sketcher.Constraint("Tangent", 58, 2, 59, 1),
    Sketcher.Constraint("Tangent", 59, 2, 4, 1),
    Sketcher.Constraint("Vertical", 0),
    Sketcher.Constraint("Horizontal", 1),
    Sketcher.Constraint("Vertical", 2),
    Sketcher.Constraint("Horizontal", 3),
    Sketcher.Constraint("Vertical", 7),
    Sketcher.Constraint("Vertical", 11),
    Sketcher.Constraint("Vertical", 15),
    Sketcher.Constraint("Vertical", 19),
    Sketcher.Constraint("Horizontal", 22),
    Sketcher.Constraint("Horizontal", 24),
    Sketcher.Constraint("Vertical", 27),
    Sketcher.Constraint("Vertical", 31),
    Sketcher.Constraint("Vertical", 35),
    Sketcher.Constraint("Vertical", 39),
    Sketcher.Constraint("Vertical", 43),
    Sketcher.Constraint("Vertical", 47),
    Sketcher.Constraint("Horizontal", 50),
    Sketcher.Constraint("Horizontal", 52),
    Sketcher.Constraint("Vertical", 55),
    Sketcher.Constraint("Vertical", 59),
    Sketcher.Constraint("Equal", 4, 6),
    Sketcher.Constraint("Equal", 6, 8),
    Sketcher.Constraint("Equal", 8, 10),
    Sketcher.Constraint("Equal", 10, 12),
    Sketcher.Constraint("Equal", 12, 14),
    Sketcher.Constraint("Equal", 14, 16),
    Sketcher.Constraint("Equal", 16, 18),
    Sketcher.Constraint("Equal", 18, 21),
    Sketcher.Constraint("Equal", 21, 25),
    Sketcher.Constraint("Equal", 20, 26),
    Sketcher.Constraint("Equal", 25, 28),
    Sketcher.Constraint("Equal", 28, 30),
    Sketcher.Constraint("Equal", 30, 32),
    Sketcher.Constraint("Equal", 32, 34),
    Sketcher.Constraint("Equal", 34, 36),
    Sketcher.Constraint("Equal", 9, 37),
    Sketcher.Constraint("Equal", 36, 38),
    Sketcher.Constraint("Equal", 38, 40),
    Sketcher.Constraint("Equal", 40, 42),
    Sketcher.Constraint("Equal", 42, 44),
    Sketcher.Constraint("Equal", 44, 46),
    Sketcher.Constraint("Equal", 26, 48),
    Sketcher.Constraint("Equal", 46, 49),
    Sketcher.Constraint("Equal", 23, 51),
    Sketcher.Constraint("Equal", 49, 53),
    Sketcher.Constraint("Equal", 48, 54),
    Sketcher.Constraint("Equal", 53, 56),
    Sketcher.Constraint("Equal", 56, 58),
    Sketcher.Constraint("Symmetric", 4, 3, 32, 3, -1, 1),
    Sketcher.Constraint("Symmetric", 6, 3, 34, 3, -1, 1),
    Sketcher.Constraint("Symmetric", 9, 3, 37, 3, -1, 1),
    Sketcher.Constraint("Symmetric", 12, 3, 40, 3, -1, 1),
    Sketcher.Constraint("Symmetric", 14, 3, 42, 3, -1, 1),
    Sketcher.Constraint("Symmetric", 18, 3, 46, 3, -1, 1),
    Sketcher.Constraint("Symmetric", 21, 3, 49, 3, -1, 1),
    Sketcher.Constraint("Symmetric", 23, 3, 51, 3, -1, 1),
    Sketcher.Constraint("Symmetric", 25, 3, 53, 3, -1, 1),
    Sketcher.Constraint("Symmetric", 28, 3, 56, 3, -1, 1),
    Sketcher.Constraint("Symmetric", 0, 2, 2, 2, -1, 1),
    Sketcher.Constraint("Symmetric", 8, 3, 10, 3, -2),
    Sketcher.Constraint("Symmetric", 4, 3, 14, 3, -2),
    Sketcher.Constraint("Symmetric", 28, 3, 46, 3, -2),
    Sketcher.Constraint("Symmetric", 25, 3, 49, 3, -2),
    Sketcher.Constraint("PointOnObject", 23, 3, -1),
    Sketcher.Constraint("Parallel", 5, 17),
    Sketcher.Constraint("Parallel", 13, 29),
    Sketcher.Constraint("Parallel", 33, 45),
    Sketcher.Constraint("Parallel", 41, 57),
    Sketcher.Constraint("Horizontal", 6, 3, 12, 3),
    Sketcher.Constraint("Vertical", 12, 3, 18, 3),
    Sketcher.Constraint("Radius", 4, Q("20 mm")),
    Sketcher.Constraint("Radius", 9, Q("45 mm")),
    Sketcher.Constraint("Radius", 23, Q("22.5 mm")),
    Sketcher.Constraint("Angle", 5, Q("120 deg")),
    Sketcher.Constraint("DistanceX", -1, 1, 23, 3, Q("242 mm")),
    Sketcher.Constraint("DistanceX", 4, 3, -1, 1, Q("48.5 mm")),
    Sketcher.Constraint("DistanceX", 6, 3, -1, 1, Q("17.5 mm")),
    Sketcher.Constraint("DistanceY", -1, 1, 9, 3, Q("202.5 mm")),
    Sketcher.Constraint("DistanceY", -1, 1, 21, 3, Q("32.5 mm")),
    Sketcher.Constraint("Radius", 20, Q("59.347442 mm")),
    Sketcher.Constraint("DistanceX", 22, 1, 22, 2, Q("161.293729 mm")),
    Sketcher.Constraint("DistanceY", 19, 2, 19, 1, Q("53.217219 mm")),
    Sketcher.Constraint("DistanceX", 1, 1, 1, 2, Q("600.899293 mm")),
    Sketcher.Constraint("DistanceY", 0, 2, 0, 1, Q("554.061756 mm")),
    Sketcher.Constraint("DistanceY", 7, 1, 7, 2, Q("29.473014 mm")),
])
pocket2 = body.newObject("PartDesign::Pocket", "Pocket001")
pocket2.Profile = sketch3
pocket2.Type = "ThroughAll"
pocket2.Midplane = True

doc.recompute()
